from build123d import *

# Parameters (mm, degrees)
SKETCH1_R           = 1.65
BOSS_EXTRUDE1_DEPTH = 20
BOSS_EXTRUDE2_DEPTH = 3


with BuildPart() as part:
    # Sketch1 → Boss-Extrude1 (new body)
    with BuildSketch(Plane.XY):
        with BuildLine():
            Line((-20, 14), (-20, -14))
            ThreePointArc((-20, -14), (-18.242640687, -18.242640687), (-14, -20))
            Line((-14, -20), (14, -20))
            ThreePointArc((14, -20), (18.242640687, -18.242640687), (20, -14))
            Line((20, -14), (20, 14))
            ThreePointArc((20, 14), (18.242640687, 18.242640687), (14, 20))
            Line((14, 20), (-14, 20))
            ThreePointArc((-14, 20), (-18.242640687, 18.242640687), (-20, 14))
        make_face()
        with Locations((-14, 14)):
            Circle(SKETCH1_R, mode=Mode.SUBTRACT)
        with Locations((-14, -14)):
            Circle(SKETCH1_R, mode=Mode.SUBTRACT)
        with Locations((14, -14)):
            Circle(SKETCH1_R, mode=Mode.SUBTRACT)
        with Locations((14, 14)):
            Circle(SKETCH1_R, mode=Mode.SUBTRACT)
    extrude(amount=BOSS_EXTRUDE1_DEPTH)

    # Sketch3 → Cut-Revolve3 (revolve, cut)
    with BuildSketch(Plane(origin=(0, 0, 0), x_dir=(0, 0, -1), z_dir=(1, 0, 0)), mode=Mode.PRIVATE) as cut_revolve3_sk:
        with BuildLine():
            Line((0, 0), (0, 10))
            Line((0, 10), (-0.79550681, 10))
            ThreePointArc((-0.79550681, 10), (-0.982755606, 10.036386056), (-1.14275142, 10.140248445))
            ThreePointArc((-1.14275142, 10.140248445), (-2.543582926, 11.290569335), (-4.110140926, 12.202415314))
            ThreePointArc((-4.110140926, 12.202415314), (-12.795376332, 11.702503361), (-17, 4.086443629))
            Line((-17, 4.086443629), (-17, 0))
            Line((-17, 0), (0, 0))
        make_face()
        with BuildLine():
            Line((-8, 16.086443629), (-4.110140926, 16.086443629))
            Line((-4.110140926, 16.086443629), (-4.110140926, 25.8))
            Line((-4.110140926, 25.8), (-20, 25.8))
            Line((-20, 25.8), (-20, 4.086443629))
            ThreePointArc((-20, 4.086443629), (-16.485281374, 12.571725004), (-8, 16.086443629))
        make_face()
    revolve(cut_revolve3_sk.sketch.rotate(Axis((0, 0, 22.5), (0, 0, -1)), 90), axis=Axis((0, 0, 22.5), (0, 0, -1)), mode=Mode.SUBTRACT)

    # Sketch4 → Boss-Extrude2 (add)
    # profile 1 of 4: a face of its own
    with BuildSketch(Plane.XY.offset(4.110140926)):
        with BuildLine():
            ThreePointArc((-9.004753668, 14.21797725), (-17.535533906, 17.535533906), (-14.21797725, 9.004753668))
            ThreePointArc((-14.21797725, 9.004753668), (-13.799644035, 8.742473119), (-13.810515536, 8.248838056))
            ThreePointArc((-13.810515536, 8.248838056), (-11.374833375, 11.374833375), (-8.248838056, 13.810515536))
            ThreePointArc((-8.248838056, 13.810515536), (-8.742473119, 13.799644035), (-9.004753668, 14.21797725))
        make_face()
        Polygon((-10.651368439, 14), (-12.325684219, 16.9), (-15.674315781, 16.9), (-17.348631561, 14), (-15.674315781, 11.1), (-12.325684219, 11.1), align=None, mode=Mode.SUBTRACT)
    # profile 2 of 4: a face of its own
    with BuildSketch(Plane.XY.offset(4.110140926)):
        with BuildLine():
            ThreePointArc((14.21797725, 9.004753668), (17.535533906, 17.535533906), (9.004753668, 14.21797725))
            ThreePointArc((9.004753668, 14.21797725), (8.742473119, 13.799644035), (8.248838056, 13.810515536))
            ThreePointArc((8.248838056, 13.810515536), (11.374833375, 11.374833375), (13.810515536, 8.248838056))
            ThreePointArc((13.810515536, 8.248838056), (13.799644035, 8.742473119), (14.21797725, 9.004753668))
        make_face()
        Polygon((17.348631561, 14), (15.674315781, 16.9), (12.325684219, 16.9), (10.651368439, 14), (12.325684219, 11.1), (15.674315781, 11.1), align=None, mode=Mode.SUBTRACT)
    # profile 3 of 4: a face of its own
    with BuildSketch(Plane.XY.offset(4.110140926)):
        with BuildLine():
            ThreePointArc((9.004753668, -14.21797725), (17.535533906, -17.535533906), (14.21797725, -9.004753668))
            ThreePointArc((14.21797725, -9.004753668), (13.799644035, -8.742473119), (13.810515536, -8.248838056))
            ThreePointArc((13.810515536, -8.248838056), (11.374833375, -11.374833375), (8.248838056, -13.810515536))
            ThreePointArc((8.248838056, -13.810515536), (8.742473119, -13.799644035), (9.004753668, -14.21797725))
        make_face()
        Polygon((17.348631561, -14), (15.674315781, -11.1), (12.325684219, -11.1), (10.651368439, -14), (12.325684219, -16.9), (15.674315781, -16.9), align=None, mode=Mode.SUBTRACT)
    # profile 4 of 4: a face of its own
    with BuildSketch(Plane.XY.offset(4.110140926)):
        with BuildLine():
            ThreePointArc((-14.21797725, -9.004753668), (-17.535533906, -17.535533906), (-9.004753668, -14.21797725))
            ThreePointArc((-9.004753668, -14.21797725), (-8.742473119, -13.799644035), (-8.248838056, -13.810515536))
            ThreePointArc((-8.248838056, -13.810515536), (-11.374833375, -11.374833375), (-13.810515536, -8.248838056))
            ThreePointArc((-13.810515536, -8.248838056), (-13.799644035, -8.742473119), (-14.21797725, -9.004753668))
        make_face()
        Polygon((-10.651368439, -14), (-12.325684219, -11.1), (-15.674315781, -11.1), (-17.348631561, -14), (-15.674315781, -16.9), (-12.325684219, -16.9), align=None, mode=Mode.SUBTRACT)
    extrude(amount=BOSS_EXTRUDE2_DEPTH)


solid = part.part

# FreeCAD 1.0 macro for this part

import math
import FreeCAD as App
import Part
import Sketcher
Q = App.Units.Quantity

doc = App.newDocument("Part")
body = doc.addObject("PartDesign::Body", "Body")

# Sketch on XY plane
sketch1 = body.newObject("Sketcher::SketchObject", "Sketch")
sketch1.AttachmentSupport = (doc.getObject("XY_Plane"), [""])
sketch1.MapMode = "FlatFace"
sketch1.addGeometry(Part.LineSegment(App.Vector(-20, 14, 0), App.Vector(-20, -14, 0)), False)
sketch1.addGeometry(Part.ArcOfCircle(Part.Circle(App.Vector(-14, -14, 0), App.Vector(0, 0, 1), 6), math.radians(180), math.radians(270)), False)
sketch1.addGeometry(Part.LineSegment(App.Vector(-14, -20, 0), App.Vector(14, -20, 0)), False)
sketch1.addGeometry(Part.ArcOfCircle(Part.Circle(App.Vector(14, -14, 0), App.Vector(0, 0, 1), 6), math.radians(-90), math.radians(0)), False)
sketch1.addGeometry(Part.LineSegment(App.Vector(20, -14, 0), App.Vector(20, 14, 0)), False)
sketch1.addGeometry(Part.ArcOfCircle(Part.Circle(App.Vector(14, 14, 0), App.Vector(0, 0, 1), 6), math.radians(0), math.radians(90)), False)
sketch1.addGeometry(Part.LineSegment(App.Vector(14, 20, 0), App.Vector(-14, 20, 0)), False)
sketch1.addGeometry(Part.ArcOfCircle(Part.Circle(App.Vector(-14, 14, 0), App.Vector(0, 0, 1), 6), math.radians(90), math.radians(180)), False)
sketch1.addGeometry(Part.Circle(App.Vector(-14, -14, 0), App.Vector(0, 0, 1), 1.6), False)
sketch1.addGeometry(Part.Circle(App.Vector(14, -14, 0), App.Vector(0, 0, 1), 1.6), False)
sketch1.addGeometry(Part.Circle(App.Vector(-14, 14, 0), App.Vector(0, 0, 1), 1.6), False)
sketch1.addGeometry(Part.Circle(App.Vector(14, 14, 0), App.Vector(0, 0, 1), 1.6), False)
sketch1.addConstraint(Sketcher.Constraint("Tangent", 0, 2, 1, 1))
sketch1.addConstraint(Sketcher.Constraint("Tangent", 1, 2, 2, 1))
sketch1.addConstraint(Sketcher.Constraint("Tangent", 2, 2, 3, 1))
sketch1.addConstraint(Sketcher.Constraint("Tangent", 3, 2, 4, 1))
sketch1.addConstraint(Sketcher.Constraint("Tangent", 4, 2, 5, 1))
sketch1.addConstraint(Sketcher.Constraint("Tangent", 5, 2, 6, 1))
sketch1.addConstraint(Sketcher.Constraint("Tangent", 6, 2, 7, 1))
sketch1.addConstraint(Sketcher.Constraint("Tangent", 7, 2, 0, 1))
sketch1.addConstraint(Sketcher.Constraint("Vertical", 0))
sketch1.addConstraint(Sketcher.Constraint("Horizontal", 2))
sketch1.addConstraint(Sketcher.Constraint("Vertical", 4))
sketch1.addConstraint(Sketcher.Constraint("Horizontal", 6))
sketch1.addConstraint(Sketcher.Constraint("Coincident", 8, 3, 1, 3))
sketch1.addConstraint(Sketcher.Constraint("Coincident", 9, 3, 3, 3))
sketch1.addConstraint(Sketcher.Constraint("Coincident", 10, 3, 7, 3))
sketch1.addConstraint(Sketcher.Constraint("Coincident", 11, 3, 5, 3))
sketch1.addConstraint(Sketcher.Constraint("Equal", 1, 3))
sketch1.addConstraint(Sketcher.Constraint("Equal", 3, 5))
sketch1.addConstraint(Sketcher.Constraint("Equal", 5, 7))
sketch1.addConstraint(Sketcher.Constraint("Equal", 8, 9))
sketch1.addConstraint(Sketcher.Constraint("Equal", 9, 10))
sketch1.addConstraint(Sketcher.Constraint("Equal", 10, 11))
sketch1.addConstraint(Sketcher.Constraint("Symmetric", 1, 3, 5, 3, -1, 1))
sketch1.addConstraint(Sketcher.Constraint("Equal", 6, 0))
sketch1.addConstraint(Sketcher.Constraint("Radius", 1, 6.0))
sketch1.addConstraint(Sketcher.Constraint("Diameter", 8, 3.3))
sketch1.addConstraint(Sketcher.Constraint("DistanceX", 2, 1, 2, 2, 28.0))
pad1 = body.newObject("PartDesign::Pad", "Pad")
pad1.Profile = sketch1
pad1.Length = 20

# Sketch on YZ plane
sketch2 = body.newObject("Sketcher::SketchObject", "Sketch001")
sketch2.AttachmentSupport = (doc.getObject("YZ_Plane"), [""])
sketch2.MapMode = "FlatFace"
sketch2.addGeometry(Part.LineSegment(App.Vector(0, 0, 0), App.Vector(10, 0, 0)), False)
sketch2.addGeometry(Part.LineSegment(App.Vector(10, 0, 0), App.Vector(10, 0.8, 0)), False)
sketch2.addGeometry(Part.ArcOfCircle(Part.Circle(App.Vector(10.5, 0.8, 0), App.Vector(0, 0, 1), 0.5), math.radians(136), math.radians(180)), False)
sketch2.addGeometry(Part.ArcOfCircle(Part.Circle(App.Vector(2, 9, 0), App.Vector(0, 0, 1), 11.31), math.radians(-43.99), math.radians(-25.61)), False)
sketch2.addGeometry(Part.ArcOfCircle(Part.Circle(App.Vector(4.09, 8, 0), App.Vector(0, 0, 1), 9), math.radians(-26), math.radians(90)), False)
sketch2.addGeometry(Part.LineSegment(App.Vector(4.09, 17, 0), App.Vector(0, 17, 0)), False)
sketch2.addGeometry(Part.LineSegment(App.Vector(0, 17, 0), App.Vector(0, 0, 0)), False)
sketch2.addGeometry(Part.LineSegment(App.Vector(16.09, 8, 0), App.Vector(16.09, 4.11, 0)), False)
sketch2.addGeometry(Part.LineSegment(App.Vector(16.09, 4.11, 0), App.Vector(25.8, 4.11, 0)), False)
sketch2.addGeometry(Part.LineSegment(App.Vector(25.8, 4.11, 0), App.Vector(25.8, 20, 0)), False)
sketch2.addGeometry(Part.LineSegment(App.Vector(25.8, 20, 0), App.Vector(4.09, 20, 0)), False)
sketch2.addGeometry(Part.ArcOfCircle(Part.Circle(App.Vector(4.09, 8, 0), App.Vector(0, 0, 1), 12), math.radians(0), math.radians(90)), False)
sketch2.addConstraint(Sketcher.Constraint("Coincident", 0, 2, 1, 1))
sketch2.addConstraint(Sketcher.Constraint("Tangent", 1, 2, 2, 2))
sketch2.addConstraint(Sketcher.Constraint("Tangent", 2, 1, 3, 1))
sketch2.addConstraint(Sketcher.Constraint("Tangent", 3, 2, 4, 1))
sketch2.addConstraint(Sketcher.Constraint("Tangent", 4, 2, 5, 1))
sketch2.addConstraint(Sketcher.Constraint("Coincident", 5, 2, 6, 1))
sketch2.addConstraint(Sketcher.Constraint("Coincident", 6, 2, 0, 1))
sketch2.addConstraint(Sketcher.Constraint("Coincident", 7, 2, 8, 1))
sketch2.addConstraint(Sketcher.Constraint("Coincident", 8, 2, 9, 1))
sketch2.addConstraint(Sketcher.Constraint("Coincident", 9, 2, 10, 1))
sketch2.addConstraint(Sketcher.Constraint("Tangent", 10, 2, 11, 2))
sketch2.addConstraint(Sketcher.Constraint("Tangent", 11, 1, 7, 1))
sketch2.addConstraint(Sketcher.Constraint("Horizontal", 0))
sketch2.addConstraint(Sketcher.Constraint("Vertical", 1))
sketch2.addConstraint(Sketcher.Constraint("Horizontal", 5))
sketch2.addConstraint(Sketcher.Constraint("Vertical", 6))
sketch2.addConstraint(Sketcher.Constraint("Vertical", 7))
sketch2.addConstraint(Sketcher.Constraint("Horizontal", 8))
sketch2.addConstraint(Sketcher.Constraint("Vertical", 9))
sketch2.addConstraint(Sketcher.Constraint("Horizontal", 10))
sketch2.addConstraint(Sketcher.Constraint("Coincident", 6, 2, -1, 1))
sketch2.addConstraint(Sketcher.Constraint("Coincident", 11, 3, 4, 3))
sketch2.addConstraint(Sketcher.Constraint("Horizontal", 3, 2, 7, 2))
sketch2.addConstraint(Sketcher.Constraint("Radius", 4, 9.0))
sketch2.addConstraint(Sketcher.Constraint("Radius", 11, 12.0))
sketch2.addConstraint(Sketcher.Constraint("Radius", 2, 0.5))
sketch2.addConstraint(Sketcher.Constraint("DistanceX", 0, 1, 0, 2, 10.0))
sketch2.addConstraint(Sketcher.Constraint("DistanceY", 6, 2, 6, 1, 17.0))
sketch2.addConstraint(Sketcher.Constraint("DistanceX", -1, 1, 3, 3, 2.0))
sketch2.addConstraint(Sketcher.Constraint("DistanceY", -1, 1, 3, 3, 9.0))
sketch2.addConstraint(Sketcher.Constraint("DistanceX", -1, 1, 8, 2, 25.8))
sketch2.addConstraint(Sketcher.Constraint("Radius", 3, 11.313708))
groove = body.newObject("PartDesign::Groove", "Groove")
groove.Profile = sketch2
groove.ReferenceAxis = (sketch2, ["V_Axis"])
groove.Angle = 360

# Sketch on XY plane
sketch3 = body.newObject("Sketcher::SketchObject", "Sketch002")
sketch3.AttachmentSupport = (doc.getObject("XY_Plane"), [""])
sketch3.MapMode = "FlatFace"
sketch3.AttachmentOffset = App.Placement(App.Vector(0, 0, 4.110141), App.Rotation())
sketch3.addGeometry(Part.ArcOfCircle(Part.Circle(App.Vector(-14, 14, 0), App.Vector(0, 0, 1), 5), math.radians(2), math.radians(268)), False)
sketch3.addGeometry(Part.ArcOfCircle(Part.Circle(App.Vector(-14.2, 8.5, 0), App.Vector(0, 0, 1), 0.5), math.radians(-31), math.radians(88)), False)
sketch3.addGeometry(Part.ArcOfCircle(Part.Circle(App.Vector(0, 0, 0), App.Vector(0, 0, 1), 16.1), math.radians(121), math.radians(149)), False)
sketch3.addGeometry(Part.ArcOfCircle(Part.Circle(App.Vector(-8.5, 14.2, 0), App.Vector(0, 0, 1), 0.5), math.radians(-178), math.radians(-59)), False)
sketch3.addGeometry(Part.LineSegment(App.Vector(-12.3, 16.9, 0), App.Vector(-10.7, 14, 0)), False)
sketch3.addGeometry(Part.LineSegment(App.Vector(-10.7, 14, 0), App.Vector(-12.3, 11.1, 0)), False)
sketch3.addGeometry(Part.LineSegment(App.Vector(-12.3, 11.1, 0), App.Vector(-15.7, 11.1, 0)), False)
sketch3.addGeometry(Part.LineSegment(App.Vector(-15.7, 11.1, 0), App.Vector(-17.3, 14, 0)), False)
sketch3.addGeometry(Part.LineSegment(App.Vector(-17.3, 14, 0), App.Vector(-15.7, 16.9, 0)), False)
sketch3.addGeometry(Part.LineSegment(App.Vector(-15.7, 16.9, 0), App.Vector(-12.3, 16.9, 0)), False)
sketch3.addGeometry(Part.ArcOfCircle(Part.Circle(App.Vector(14, 14, 0), App.Vector(0, 0, 1), 5), math.radians(-88), math.radians(178)), False)
sketch3.addGeometry(Part.ArcOfCircle(Part.Circle(App.Vector(8.5, 14.2, 0), App.Vector(0, 0, 1), 0.5), math.radians(-121), math.radians(-2)), False)
sketch3.addGeometry(Part.ArcOfCircle(Part.Circle(App.Vector(0, 0, 0), App.Vector(0, 0, 1), 16.1), math.radians(31), math.radians(59)), False)
sketch3.addGeometry(Part.ArcOfCircle(Part.Circle(App.Vector(14.2, 8.5, 0), App.Vector(0, 0, 1), 0.5), math.radians(92), math.radians(211)), False)
sketch3.addGeometry(Part.LineSegment(App.Vector(15.7, 16.9, 0), App.Vector(17.3, 14, 0)), False)
sketch3.addGeometry(Part.LineSegment(App.Vector(17.3, 14, 0), App.Vector(15.7, 11.1, 0)), False)
sketch3.addGeometry(Part.LineSegment(App.Vector(15.7, 11.1, 0), App.Vector(12.3, 11.1, 0)), False)
sketch3.addGeometry(Part.LineSegment(App.Vector(12.3, 11.1, 0), App.Vector(10.7, 14, 0)), False)
sketch3.addGeometry(Part.LineSegment(App.Vector(10.7, 14, 0), App.Vector(12.3, 16.9, 0)), False)
sketch3.addGeometry(Part.LineSegment(App.Vector(12.3, 16.9, 0), App.Vector(15.7, 16.9, 0)), False)
sketch3.addGeometry(Part.ArcOfCircle(Part.Circle(App.Vector(14, -14, 0), App.Vector(0, 0, 1), 5), math.radians(-178), math.radians(88)), False)
sketch3.addGeometry(Part.ArcOfCircle(Part.Circle(App.Vector(14.2, -8.5, 0), App.Vector(0, 0, 1), 0.5), math.radians(149), math.radians(268)), False)
sketch3.addGeometry(Part.ArcOfCircle(Part.Circle(App.Vector(0, 0, 0), App.Vector(0, 0, 1), 16.1), math.radians(-59), math.radians(-31)), False)
sketch3.addGeometry(Part.ArcOfCircle(Part.Circle(App.Vector(8.5, -14.2, 0), App.Vector(0, 0, 1), 0.5), math.radians(2), math.radians(121)), False)
sketch3.addGeometry(Part.LineSegment(App.Vector(15.7, -11.1, 0), App.Vector(17.3, -14, 0)), False)
sketch3.addGeometry(Part.LineSegment(App.Vector(17.3, -14, 0), App.Vector(15.7, -16.9, 0)), False)
sketch3.addGeometry(Part.LineSegment(App.Vector(15.7, -16.9, 0), App.Vector(12.3, -16.9, 0)), False)
sketch3.addGeometry(Part.LineSegment(App.Vector(12.3, -16.9, 0), App.Vector(10.7, -14, 0)), False)
sketch3.addGeometry(Part.LineSegment(App.Vector(10.7, -14, 0), App.Vector(12.3, -11.1, 0)), False)
sketch3.addGeometry(Part.LineSegment(App.Vector(12.3, -11.1, 0), App.Vector(15.7, -11.1, 0)), False)
sketch3.addGeometry(Part.ArcOfCircle(Part.Circle(App.Vector(-14, -14, 0), App.Vector(0, 0, 1), 5), math.radians(92), math.radians(358)), False)
sketch3.addGeometry(Part.ArcOfCircle(Part.Circle(App.Vector(-8.5, -14.2, 0), App.Vector(0, 0, 1), 0.5), math.radians(59), math.radians(178)), False)
sketch3.addGeometry(Part.ArcOfCircle(Part.Circle(App.Vector(0, 0, 0), App.Vector(0, 0, 1), 16.1), math.radians(-149), math.radians(-121)), False)
sketch3.addGeometry(Part.ArcOfCircle(Part.Circle(App.Vector(-14.2, -8.5, 0), App.Vector(0, 0, 1), 0.5), math.radians(-88), math.radians(31)), False)
sketch3.addGeometry(Part.LineSegment(App.Vector(-12.3, -11.1, 0), App.Vector(-10.7, -14, 0)), False)
sketch3.addGeometry(Part.LineSegment(App.Vector(-10.7, -14, 0), App.Vector(-12.3, -16.9, 0)), False)
sketch3.addGeometry(Part.LineSegment(App.Vector(-12.3, -16.9, 0), App.Vector(-15.7, -16.9, 0)), False)
sketch3.addGeometry(Part.LineSegment(App.Vector(-15.7, -16.9, 0), App.Vector(-17.3, -14, 0)), False)
sketch3.addGeometry(Part.LineSegment(App.Vector(-17.3, -14, 0), App.Vector(-15.7, -11.1, 0)), False)
sketch3.addGeometry(Part.LineSegment(App.Vector(-15.7, -11.1, 0), App.Vector(-12.3, -11.1, 0)), False)
sketch3.addConstraint(Sketcher.Constraint("Tangent", 0, 2, 1, 2))
sketch3.addConstraint(Sketcher.Constraint("Tangent", 1, 1, 2, 2))
sketch3.addConstraint(Sketcher.Constraint("Tangent", 2, 1, 3, 2))
sketch3.addConstraint(Sketcher.Constraint("Tangent", 3, 1, 0, 1))
sketch3.addConstraint(Sketcher.Constraint("Coincident", 4, 2, 5, 1))
sketch3.addConstraint(Sketcher.Constraint("Coincident", 5, 2, 6, 1))
sketch3.addConstraint(Sketcher.Constraint("Coincident", 6, 2, 7, 1))
sketch3.addConstraint(Sketcher.Constraint("Coincident", 7, 2, 8, 1))
sketch3.addConstraint(Sketcher.Constraint("Coincident", 8, 2, 9, 1))
sketch3.addConstraint(Sketcher.Constraint("Coincident", 9, 2, 4, 1))
sketch3.addConstraint(Sketcher.Constraint("Tangent", 10, 2, 11, 2))
sketch3.addConstraint(Sketcher.Constraint("Tangent", 11, 1, 12, 2))
sketch3.addConstraint(Sketcher.Constraint("Tangent", 12, 1, 13, 2))
sketch3.addConstraint(Sketcher.Constraint("Tangent", 13, 1, 10, 1))
sketch3.addConstraint(Sketcher.Constraint("Coincident", 14, 2, 15, 1))
sketch3.addConstraint(Sketcher.Constraint("Coincident", 15, 2, 16, 1))
sketch3.addConstraint(Sketcher.Constraint("Coincident", 16, 2, 17, 1))
sketch3.addConstraint(Sketcher.Constraint("Coincident", 17, 2, 18, 1))
sketch3.addConstraint(Sketcher.Constraint("Coincident", 18, 2, 19, 1))
sketch3.addConstraint(Sketcher.Constraint("Coincident", 19, 2, 14, 1))
sketch3.addConstraint(Sketcher.Constraint("Tangent", 20, 2, 21, 2))
sketch3.addConstraint(Sketcher.Constraint("Tangent", 21, 1, 22, 2))
sketch3.addConstraint(Sketcher.Constraint("Tangent", 22, 1, 23, 2))
sketch3.addConstraint(Sketcher.Constraint("Tangent", 23, 1, 20, 1))
sketch3.addConstraint(Sketcher.Constraint("Coincident", 24, 2, 25, 1))
sketch3.addConstraint(Sketcher.Constraint("Coincident", 25, 2, 26, 1))
sketch3.addConstraint(Sketcher.Constraint("Coincident", 26, 2, 27, 1))
sketch3.addConstraint(Sketcher.Constraint("Coincident", 27, 2, 28, 1))
sketch3.addConstraint(Sketcher.Constraint("Coincident", 28, 2, 29, 1))
sketch3.addConstraint(Sketcher.Constraint("Coincident", 29, 2, 24, 1))
sketch3.addConstraint(Sketcher.Constraint("Tangent", 30, 2, 31, 2))
sketch3.addConstraint(Sketcher.Constraint("Tangent", 31, 1, 32, 2))
sketch3.addConstraint(Sketcher.Constraint("Tangent", 32, 1, 33, 2))
sketch3.addConstraint(Sketcher.Constraint("Tangent", 33, 1, 30, 1))
sketch3.addConstraint(Sketcher.Constraint("Coincident", 34, 2, 35, 1))
sketch3.addConstraint(Sketcher.Constraint("Coincident", 35, 2, 36, 1))
sketch3.addConstraint(Sketcher.Constraint("Coincident", 36, 2, 37, 1))
sketch3.addConstraint(Sketcher.Constraint("Coincident", 37, 2, 38, 1))
sketch3.addConstraint(Sketcher.Constraint("Coincident", 38, 2, 39, 1))
sketch3.addConstraint(Sketcher.Constraint("Coincident", 39, 2, 34, 1))
sketch3.addConstraint(Sketcher.Constraint("Horizontal", 6))
sketch3.addConstraint(Sketcher.Constraint("Horizontal", 9))
sketch3.addConstraint(Sketcher.Constraint("Horizontal", 16))
sketch3.addConstraint(Sketcher.Constraint("Horizontal", 19))
sketch3.addConstraint(Sketcher.Constraint("Horizontal", 26))
sketch3.addConstraint(Sketcher.Constraint("Horizontal", 29))
sketch3.addConstraint(Sketcher.Constraint("Horizontal", 36))
sketch3.addConstraint(Sketcher.Constraint("Horizontal", 39))
sketch3.addConstraint(Sketcher.Constraint("Coincident", 2, 3, -1, 1))
sketch3.addConstraint(Sketcher.Constraint("Coincident", 12, 3, -1, 1))
sketch3.addConstraint(Sketcher.Constraint("Coincident", 22, 3, -1, 1))
sketch3.addConstraint(Sketcher.Constraint("Coincident", 32, 3, -1, 1))
sketch3.addConstraint(Sketcher.Constraint("Equal", 1, 3))
sketch3.addConstraint(Sketcher.Constraint("Equal", 0, 10))
sketch3.addConstraint(Sketcher.Constraint("Equal", 3, 11))
sketch3.addConstraint(Sketcher.Constraint("Equal", 2, 12))
sketch3.addConstraint(Sketcher.Constraint("Equal", 11, 13))
sketch3.addConstraint(Sketcher.Constraint("Equal", 10, 20))
sketch3.addConstraint(Sketcher.Constraint("Equal", 13, 21))
sketch3.addConstraint(Sketcher.Constraint("Equal", 12, 22))
sketch3.addConstraint(Sketcher.Constraint("Equal", 21, 23))
sketch3.addConstraint(Sketcher.Constraint("Equal", 20, 30))
sketch3.addConstraint(Sketcher.Constraint("Equal", 23, 31))
sketch3.addConstraint(Sketcher.Constraint("Equal", 22, 32))
sketch3.addConstraint(Sketcher.Constraint("Equal", 31, 33))
sketch3.addConstraint(Sketcher.Constraint("Symmetric", 0, 3, 20, 3, -1, 1))
sketch3.addConstraint(Sketcher.Constraint("Symmetric", 10, 3, 30, 3, -1, 1))
sketch3.addConstraint(Sketcher.Constraint("Symmetric", 7, 2, 24, 2, -1, 1))
sketch3.addConstraint(Sketcher.Constraint("Symmetric", 8, 2, 25, 2, -1, 1))
sketch3.addConstraint(Sketcher.Constraint("Symmetric", 4, 2, 27, 2, -1, 1))
sketch3.addConstraint(Sketcher.Constraint("Symmetric", 5, 2, 28, 2, -1, 1))
sketch3.addConstraint(Sketcher.Constraint("Symmetric", 17, 2, 34, 2, -1, 1))
sketch3.addConstraint(Sketcher.Constraint("Symmetric", 18, 2, 35, 2, -1, 1))
sketch3.addConstraint(Sketcher.Constraint("Symmetric", 14, 2, 37, 2, -1, 1))
sketch3.addConstraint(Sketcher.Constraint("Symmetric", 15, 2, 38, 2, -1, 1))
sketch3.addConstraint(Sketcher.Constraint("Symmetric", 0, 3, 10, 3, -2))
sketch3.addConstraint(Sketcher.Constraint("Symmetric", 7, 2, 14, 2, -2))
sketch3.addConstraint(Sketcher.Constraint("Symmetric", 6, 2, 15, 2, -2))
sketch3.addConstraint(Sketcher.Constraint("Symmetric", 4, 2, 17, 2, -2))
sketch3.addConstraint(Sketcher.Constraint("Symmetric", 9, 2, 18, 2, -2))
sketch3.addConstraint(Sketcher.Constraint("Parallel", 4, 7))
sketch3.addConstraint(Sketcher.Constraint("Parallel", 5, 8))
sketch3.addConstraint(Sketcher.Constraint("Parallel", 7, 14))
sketch3.addConstraint(Sketcher.Constraint("Parallel", 8, 15))
sketch3.addConstraint(Sketcher.Constraint("Parallel", 14, 17))
sketch3.addConstraint(Sketcher.Constraint("Parallel", 17, 24))
sketch3.addConstraint(Sketcher.Constraint("Parallel", 24, 27))
sketch3.addConstraint(Sketcher.Constraint("Parallel", 27, 34))
sketch3.addConstraint(Sketcher.Constraint("Parallel", 34, 37))
sketch3.addConstraint(Sketcher.Constraint("Horizontal", 10, 3, 4, 2))
sketch3.addConstraint(Sketcher.Constraint("Horizontal", 4, 2, 7, 2))
sketch3.addConstraint(Sketcher.Constraint("Vertical", 6, 2, 8, 2))
sketch3.addConstraint(Sketcher.Constraint("Radius", 0, 5.0))
sketch3.addConstraint(Sketcher.Constraint("Radius", 1, 0.5))
sketch3.addConstraint(Sketcher.Constraint("Angle", 4, Q("-60 deg")))
sketch3.addConstraint(Sketcher.Constraint("DistanceX", 0, 3, -1, 1, 14.0))
sketch3.addConstraint(Sketcher.Constraint("DistanceY", -1, 1, 0, 3, 14.0))
sketch3.addConstraint(Sketcher.Constraint("DistanceY", -1, 1, 5, 2, 11.1))
sketch3.addConstraint(Sketcher.Constraint("Radius", 2, 16.086444))
sketch3.addConstraint(Sketcher.Constraint("DistanceX", 6, 2, 6, 1, 3.348632))
sketch3.addConstraint(Sketcher.Constraint("DistanceX", 6, 2, 1, 1, 1.8638))
pad2 = body.newObject("PartDesign::Pad", "Pad001")
pad2.Profile = sketch3
pad2.Length = 3

doc.recompute()
